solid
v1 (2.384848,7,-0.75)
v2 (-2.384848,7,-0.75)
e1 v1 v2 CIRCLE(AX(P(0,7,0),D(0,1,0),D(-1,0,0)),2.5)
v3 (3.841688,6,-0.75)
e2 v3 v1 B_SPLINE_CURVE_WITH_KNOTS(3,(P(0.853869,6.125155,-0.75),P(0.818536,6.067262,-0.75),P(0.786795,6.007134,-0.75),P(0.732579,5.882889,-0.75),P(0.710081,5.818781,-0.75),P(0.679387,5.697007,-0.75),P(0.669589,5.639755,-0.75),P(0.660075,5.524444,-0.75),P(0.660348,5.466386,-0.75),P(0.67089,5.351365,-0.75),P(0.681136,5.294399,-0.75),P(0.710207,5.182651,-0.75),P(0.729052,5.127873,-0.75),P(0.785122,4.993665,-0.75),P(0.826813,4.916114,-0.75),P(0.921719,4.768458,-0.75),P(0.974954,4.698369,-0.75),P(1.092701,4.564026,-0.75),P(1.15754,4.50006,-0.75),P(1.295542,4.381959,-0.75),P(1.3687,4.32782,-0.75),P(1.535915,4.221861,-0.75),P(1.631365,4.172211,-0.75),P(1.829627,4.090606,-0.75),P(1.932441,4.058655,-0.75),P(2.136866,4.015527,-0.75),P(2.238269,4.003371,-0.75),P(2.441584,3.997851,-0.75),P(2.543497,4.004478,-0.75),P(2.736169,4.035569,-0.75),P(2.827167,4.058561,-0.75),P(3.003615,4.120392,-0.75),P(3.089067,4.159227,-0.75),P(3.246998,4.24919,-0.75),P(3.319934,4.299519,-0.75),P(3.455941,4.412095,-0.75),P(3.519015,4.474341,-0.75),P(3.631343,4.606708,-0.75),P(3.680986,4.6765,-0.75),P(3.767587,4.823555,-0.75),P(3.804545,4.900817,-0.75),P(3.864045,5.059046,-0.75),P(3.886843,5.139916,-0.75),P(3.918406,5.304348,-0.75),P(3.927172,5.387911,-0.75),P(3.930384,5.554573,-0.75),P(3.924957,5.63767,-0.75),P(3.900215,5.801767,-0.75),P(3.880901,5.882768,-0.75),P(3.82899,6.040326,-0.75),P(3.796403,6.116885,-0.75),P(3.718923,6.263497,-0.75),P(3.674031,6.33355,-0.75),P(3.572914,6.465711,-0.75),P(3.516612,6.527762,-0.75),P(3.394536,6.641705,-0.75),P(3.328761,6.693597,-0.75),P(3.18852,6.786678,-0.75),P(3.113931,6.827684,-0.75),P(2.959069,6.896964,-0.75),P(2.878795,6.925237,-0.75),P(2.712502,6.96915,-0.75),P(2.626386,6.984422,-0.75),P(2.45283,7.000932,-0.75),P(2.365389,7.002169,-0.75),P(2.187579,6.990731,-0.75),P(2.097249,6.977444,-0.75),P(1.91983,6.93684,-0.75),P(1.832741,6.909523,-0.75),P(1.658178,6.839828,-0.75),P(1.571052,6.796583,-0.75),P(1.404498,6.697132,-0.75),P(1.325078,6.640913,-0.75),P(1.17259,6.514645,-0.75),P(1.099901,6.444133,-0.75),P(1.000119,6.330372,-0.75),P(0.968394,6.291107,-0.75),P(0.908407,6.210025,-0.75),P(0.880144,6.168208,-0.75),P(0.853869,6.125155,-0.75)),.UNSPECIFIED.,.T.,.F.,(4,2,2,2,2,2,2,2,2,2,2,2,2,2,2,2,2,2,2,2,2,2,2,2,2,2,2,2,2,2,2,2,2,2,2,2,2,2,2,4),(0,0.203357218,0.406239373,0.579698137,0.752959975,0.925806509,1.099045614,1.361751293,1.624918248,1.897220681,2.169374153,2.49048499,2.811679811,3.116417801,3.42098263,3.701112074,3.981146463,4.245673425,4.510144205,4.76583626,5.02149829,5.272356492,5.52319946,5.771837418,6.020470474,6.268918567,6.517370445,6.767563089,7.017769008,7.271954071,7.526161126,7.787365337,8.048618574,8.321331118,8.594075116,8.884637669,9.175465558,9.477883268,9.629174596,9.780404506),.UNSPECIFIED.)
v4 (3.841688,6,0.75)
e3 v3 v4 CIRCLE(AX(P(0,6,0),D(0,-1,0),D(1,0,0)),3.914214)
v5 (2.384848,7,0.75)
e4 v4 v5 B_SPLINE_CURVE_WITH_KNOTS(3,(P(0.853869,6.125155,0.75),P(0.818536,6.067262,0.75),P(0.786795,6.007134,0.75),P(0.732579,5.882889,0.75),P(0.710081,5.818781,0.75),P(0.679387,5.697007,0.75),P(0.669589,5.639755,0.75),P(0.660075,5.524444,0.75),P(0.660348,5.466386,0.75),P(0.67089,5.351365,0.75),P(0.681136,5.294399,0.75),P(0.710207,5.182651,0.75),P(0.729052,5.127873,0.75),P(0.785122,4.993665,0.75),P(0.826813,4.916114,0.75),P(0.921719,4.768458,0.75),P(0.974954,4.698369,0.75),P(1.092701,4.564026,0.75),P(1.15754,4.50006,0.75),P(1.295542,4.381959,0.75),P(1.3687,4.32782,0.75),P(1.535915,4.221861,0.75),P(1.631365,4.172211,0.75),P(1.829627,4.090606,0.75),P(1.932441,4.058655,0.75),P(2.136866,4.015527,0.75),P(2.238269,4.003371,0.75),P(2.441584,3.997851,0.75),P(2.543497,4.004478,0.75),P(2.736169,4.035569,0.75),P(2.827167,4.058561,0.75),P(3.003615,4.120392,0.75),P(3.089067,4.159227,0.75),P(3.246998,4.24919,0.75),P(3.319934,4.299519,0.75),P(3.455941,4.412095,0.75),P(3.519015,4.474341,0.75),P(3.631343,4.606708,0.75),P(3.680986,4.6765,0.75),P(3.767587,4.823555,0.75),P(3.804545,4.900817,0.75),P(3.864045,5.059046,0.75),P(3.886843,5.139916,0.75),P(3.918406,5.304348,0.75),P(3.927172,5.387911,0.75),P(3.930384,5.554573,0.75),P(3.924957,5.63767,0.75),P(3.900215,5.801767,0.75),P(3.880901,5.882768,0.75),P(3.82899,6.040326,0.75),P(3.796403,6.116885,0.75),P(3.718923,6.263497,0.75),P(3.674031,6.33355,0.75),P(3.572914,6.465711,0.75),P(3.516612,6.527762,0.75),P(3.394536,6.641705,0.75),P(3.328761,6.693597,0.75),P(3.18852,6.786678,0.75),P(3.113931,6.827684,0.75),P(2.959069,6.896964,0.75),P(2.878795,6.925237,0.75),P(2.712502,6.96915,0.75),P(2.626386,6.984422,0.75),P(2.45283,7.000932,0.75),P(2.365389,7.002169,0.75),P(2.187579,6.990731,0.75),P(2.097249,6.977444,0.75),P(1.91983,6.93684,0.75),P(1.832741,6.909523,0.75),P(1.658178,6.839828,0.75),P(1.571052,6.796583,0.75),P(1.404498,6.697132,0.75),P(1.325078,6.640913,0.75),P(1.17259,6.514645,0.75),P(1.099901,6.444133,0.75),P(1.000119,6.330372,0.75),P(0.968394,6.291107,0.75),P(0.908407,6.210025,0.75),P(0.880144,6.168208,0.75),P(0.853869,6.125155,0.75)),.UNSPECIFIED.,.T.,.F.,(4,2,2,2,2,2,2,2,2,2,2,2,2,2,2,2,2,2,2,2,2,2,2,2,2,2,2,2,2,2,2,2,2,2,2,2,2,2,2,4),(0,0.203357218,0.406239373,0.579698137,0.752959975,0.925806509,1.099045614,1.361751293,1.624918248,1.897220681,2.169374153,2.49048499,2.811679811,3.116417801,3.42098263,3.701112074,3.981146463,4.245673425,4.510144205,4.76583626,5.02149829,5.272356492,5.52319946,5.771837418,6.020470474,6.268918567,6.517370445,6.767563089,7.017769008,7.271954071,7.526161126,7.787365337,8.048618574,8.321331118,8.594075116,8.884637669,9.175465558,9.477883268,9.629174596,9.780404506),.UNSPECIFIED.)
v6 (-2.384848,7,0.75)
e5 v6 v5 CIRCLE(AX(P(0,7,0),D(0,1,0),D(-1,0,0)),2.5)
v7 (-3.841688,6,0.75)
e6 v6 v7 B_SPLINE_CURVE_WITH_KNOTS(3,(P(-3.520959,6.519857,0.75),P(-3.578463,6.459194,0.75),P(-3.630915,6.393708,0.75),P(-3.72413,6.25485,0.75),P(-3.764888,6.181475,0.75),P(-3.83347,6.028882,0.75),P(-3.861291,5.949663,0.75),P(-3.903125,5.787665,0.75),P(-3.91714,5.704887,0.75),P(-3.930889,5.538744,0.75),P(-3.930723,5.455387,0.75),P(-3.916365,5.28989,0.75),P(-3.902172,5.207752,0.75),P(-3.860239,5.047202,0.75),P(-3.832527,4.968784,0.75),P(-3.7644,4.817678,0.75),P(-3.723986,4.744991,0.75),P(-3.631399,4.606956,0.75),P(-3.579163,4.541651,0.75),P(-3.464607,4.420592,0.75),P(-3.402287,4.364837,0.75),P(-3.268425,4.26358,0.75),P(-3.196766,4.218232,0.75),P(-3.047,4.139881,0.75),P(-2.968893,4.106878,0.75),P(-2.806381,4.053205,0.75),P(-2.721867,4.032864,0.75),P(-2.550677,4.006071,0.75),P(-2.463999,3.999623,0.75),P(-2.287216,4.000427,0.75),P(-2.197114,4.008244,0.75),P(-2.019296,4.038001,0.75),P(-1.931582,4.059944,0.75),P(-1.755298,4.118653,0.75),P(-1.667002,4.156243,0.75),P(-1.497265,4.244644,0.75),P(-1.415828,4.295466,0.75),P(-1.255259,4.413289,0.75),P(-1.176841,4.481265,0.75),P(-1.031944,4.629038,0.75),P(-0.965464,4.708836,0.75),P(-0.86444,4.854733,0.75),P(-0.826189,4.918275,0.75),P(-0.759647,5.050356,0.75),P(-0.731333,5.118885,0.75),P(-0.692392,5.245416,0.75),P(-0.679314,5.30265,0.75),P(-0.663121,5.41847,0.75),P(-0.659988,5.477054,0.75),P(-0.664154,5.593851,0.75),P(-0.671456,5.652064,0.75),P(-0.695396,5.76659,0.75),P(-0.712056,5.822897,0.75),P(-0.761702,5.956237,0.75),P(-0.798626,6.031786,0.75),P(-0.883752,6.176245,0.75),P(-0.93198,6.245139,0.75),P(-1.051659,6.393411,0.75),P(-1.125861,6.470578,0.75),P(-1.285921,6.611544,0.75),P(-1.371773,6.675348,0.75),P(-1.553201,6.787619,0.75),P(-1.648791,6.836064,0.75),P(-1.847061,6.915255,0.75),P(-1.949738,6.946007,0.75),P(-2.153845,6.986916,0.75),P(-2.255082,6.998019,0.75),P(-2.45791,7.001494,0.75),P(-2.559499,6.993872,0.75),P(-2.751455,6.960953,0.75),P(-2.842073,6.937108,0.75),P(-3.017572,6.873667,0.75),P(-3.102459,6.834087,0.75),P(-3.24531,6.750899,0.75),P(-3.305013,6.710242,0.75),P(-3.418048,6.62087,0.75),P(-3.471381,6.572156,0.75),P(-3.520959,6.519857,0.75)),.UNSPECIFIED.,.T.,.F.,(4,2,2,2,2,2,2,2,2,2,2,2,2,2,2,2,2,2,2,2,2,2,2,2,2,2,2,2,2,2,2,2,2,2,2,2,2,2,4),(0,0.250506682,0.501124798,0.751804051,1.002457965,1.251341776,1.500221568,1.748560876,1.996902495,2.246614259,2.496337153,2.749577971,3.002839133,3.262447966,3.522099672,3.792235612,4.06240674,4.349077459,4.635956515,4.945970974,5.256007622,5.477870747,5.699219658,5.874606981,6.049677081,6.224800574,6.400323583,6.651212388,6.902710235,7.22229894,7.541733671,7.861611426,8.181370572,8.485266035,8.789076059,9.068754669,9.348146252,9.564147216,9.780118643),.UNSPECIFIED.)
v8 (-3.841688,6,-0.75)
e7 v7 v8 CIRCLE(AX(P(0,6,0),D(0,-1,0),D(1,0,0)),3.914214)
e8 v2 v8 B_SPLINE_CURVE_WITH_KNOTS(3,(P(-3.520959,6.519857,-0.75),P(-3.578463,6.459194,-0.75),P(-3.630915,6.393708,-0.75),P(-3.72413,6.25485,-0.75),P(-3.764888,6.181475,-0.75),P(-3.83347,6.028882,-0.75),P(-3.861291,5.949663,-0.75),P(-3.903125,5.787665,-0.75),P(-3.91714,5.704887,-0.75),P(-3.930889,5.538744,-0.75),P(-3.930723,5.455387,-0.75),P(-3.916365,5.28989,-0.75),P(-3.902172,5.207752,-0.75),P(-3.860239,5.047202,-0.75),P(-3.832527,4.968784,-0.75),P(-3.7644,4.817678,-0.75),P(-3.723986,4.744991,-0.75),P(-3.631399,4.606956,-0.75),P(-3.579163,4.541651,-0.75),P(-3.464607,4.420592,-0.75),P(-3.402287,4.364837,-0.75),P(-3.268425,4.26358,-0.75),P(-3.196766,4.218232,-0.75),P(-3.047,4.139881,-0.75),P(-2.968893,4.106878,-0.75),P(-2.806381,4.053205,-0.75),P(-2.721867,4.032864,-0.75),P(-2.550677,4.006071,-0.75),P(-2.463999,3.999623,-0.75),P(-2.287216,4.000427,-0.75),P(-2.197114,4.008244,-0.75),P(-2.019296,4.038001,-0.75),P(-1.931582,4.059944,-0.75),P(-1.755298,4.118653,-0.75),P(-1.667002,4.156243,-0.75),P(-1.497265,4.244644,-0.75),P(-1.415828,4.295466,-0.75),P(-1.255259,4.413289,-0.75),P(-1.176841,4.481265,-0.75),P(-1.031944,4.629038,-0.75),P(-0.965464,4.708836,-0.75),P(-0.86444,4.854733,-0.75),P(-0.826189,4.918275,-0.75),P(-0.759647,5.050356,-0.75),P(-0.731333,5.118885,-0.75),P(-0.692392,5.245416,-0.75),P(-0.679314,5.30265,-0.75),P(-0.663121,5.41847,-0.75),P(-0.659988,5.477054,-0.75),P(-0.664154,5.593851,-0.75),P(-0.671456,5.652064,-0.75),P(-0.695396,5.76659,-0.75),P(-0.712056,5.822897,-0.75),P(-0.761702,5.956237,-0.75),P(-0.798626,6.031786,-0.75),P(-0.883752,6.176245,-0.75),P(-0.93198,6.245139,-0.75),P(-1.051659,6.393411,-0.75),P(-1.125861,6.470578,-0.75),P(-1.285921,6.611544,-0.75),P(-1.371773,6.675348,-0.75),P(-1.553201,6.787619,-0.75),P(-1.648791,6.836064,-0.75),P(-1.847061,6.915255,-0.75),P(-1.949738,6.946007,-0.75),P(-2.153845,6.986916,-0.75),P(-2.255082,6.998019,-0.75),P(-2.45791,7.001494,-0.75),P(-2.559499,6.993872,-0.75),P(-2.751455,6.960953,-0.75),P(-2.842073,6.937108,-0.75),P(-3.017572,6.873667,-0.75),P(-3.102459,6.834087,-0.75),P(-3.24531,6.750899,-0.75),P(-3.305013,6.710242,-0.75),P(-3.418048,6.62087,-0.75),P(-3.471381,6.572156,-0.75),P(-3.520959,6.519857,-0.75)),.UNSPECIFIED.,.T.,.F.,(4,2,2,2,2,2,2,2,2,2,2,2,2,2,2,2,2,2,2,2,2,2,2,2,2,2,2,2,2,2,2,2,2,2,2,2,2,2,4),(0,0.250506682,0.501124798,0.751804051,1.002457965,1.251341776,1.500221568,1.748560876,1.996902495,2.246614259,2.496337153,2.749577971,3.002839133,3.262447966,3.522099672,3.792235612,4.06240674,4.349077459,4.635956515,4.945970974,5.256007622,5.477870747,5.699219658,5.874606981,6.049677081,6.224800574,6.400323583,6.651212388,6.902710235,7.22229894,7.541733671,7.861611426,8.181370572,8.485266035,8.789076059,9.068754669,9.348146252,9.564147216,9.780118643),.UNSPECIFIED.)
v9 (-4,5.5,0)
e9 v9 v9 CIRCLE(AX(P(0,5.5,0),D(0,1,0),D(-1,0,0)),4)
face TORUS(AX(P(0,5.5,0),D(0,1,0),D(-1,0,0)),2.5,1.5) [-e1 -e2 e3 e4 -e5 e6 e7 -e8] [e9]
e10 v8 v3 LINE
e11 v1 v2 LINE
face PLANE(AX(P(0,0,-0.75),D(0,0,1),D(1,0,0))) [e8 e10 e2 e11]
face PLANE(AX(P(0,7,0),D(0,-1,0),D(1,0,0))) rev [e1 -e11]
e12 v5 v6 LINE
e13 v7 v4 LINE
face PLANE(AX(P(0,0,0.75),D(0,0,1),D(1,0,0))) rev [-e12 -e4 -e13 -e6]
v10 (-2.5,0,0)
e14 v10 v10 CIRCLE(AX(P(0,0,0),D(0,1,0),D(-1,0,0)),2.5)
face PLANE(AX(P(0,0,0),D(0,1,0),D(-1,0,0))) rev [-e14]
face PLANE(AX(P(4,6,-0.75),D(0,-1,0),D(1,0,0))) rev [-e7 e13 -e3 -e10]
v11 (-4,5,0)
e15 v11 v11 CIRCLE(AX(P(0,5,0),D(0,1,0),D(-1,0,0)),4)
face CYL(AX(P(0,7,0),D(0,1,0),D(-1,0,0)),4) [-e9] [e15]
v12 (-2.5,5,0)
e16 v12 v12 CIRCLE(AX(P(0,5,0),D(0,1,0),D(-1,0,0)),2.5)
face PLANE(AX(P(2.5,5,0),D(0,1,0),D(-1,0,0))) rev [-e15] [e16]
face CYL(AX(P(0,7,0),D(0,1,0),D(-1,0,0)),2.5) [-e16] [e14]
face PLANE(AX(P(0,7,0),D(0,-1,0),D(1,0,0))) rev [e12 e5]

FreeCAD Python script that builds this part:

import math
import FreeCAD as App
import Part
import Sketcher
Q = App.Units.Quantity


def add_polygon(sketch, points):
    """Adds a closed chain of lines whose ends are joined by coincident constraints."""
    first, n = sketch.GeometryCount, len(points)
    for a, b in zip(points, points[1:] + points[:1]):
        sketch.addGeometry(Part.LineSegment(App.Vector(*a, 0), App.Vector(*b, 0)), False)
    for i in range(n):
        sketch.addConstraint(Sketcher.Constraint("Coincident", first + i, 2, first + (i + 1) % n, 1))

doc = App.newDocument("Part")
body = doc.addObject("PartDesign::Body", "Body")

sketch1 = body.newObject("Sketcher::SketchObject", "Sketch")
sketch1.AttachmentSupport = (doc.getObject("XY_Plane"), [""])
sketch1.MapMode = "FlatFace"
sketch1.addGeometry([
    Part.LineSegment(App.Vector(0, 0, 0), App.Vector(2.5, 0, 0)),
    Part.LineSegment(App.Vector(2.5, 0, 0), App.Vector(2.5, 5, 0)),
    Part.LineSegment(App.Vector(2.5, 5, 0), App.Vector(4, 5, 0)),
    Part.LineSegment(App.Vector(4, 5, 0), App.Vector(4, 5.5, 0)),
    Part.ArcOfCircle(Part.Circle(App.Vector(2.5, 5.5, 0), App.Vector(0, 0, 1), 1.5), math.radians(0), math.radians(90)),
    Part.LineSegment(App.Vector(2.5, 7, 0), App.Vector(0, 7, 0)),
    Part.LineSegment(App.Vector(0, 7, 0), App.Vector(0, 0, 0)),
], False)
sketch1.addConstraint([
    Sketcher.Constraint("Coincident", 0, 2, 1, 1),
    Sketcher.Constraint("Coincident", 1, 2, 2, 1),
    Sketcher.Constraint("Coincident", 2, 2, 3, 1),
    Sketcher.Constraint("Tangent", 3, 2, 4, 1),
    Sketcher.Constraint("Tangent", 4, 2, 5, 1),
    Sketcher.Constraint("Coincident", 5, 2, 6, 1),
    Sketcher.Constraint("Coincident", 6, 2, 0, 1),
    Sketcher.Constraint("Horizontal", 0),
    Sketcher.Constraint("Vertical", 1),
    Sketcher.Constraint("Horizontal", 2),
    Sketcher.Constraint("Vertical", 3),
    Sketcher.Constraint("Horizontal", 5),
    Sketcher.Constraint("Vertical", 6),
    Sketcher.Constraint("Coincident", 6, 2, -1, 1),
    Sketcher.Constraint("Vertical", 4, 3, 0, 2),
    Sketcher.Constraint("Radius", 4, Q("1.5 mm")),
    Sketcher.Constraint("DistanceY", 1, 1, 1, 2, Q("5 mm")),
    Sketcher.Constraint("DistanceY", 6, 2, 6, 1, Q("7 mm")),
    Sketcher.Constraint("DistanceX", 0, 1, 0, 2, Q("2.5 mm")),
])
revolution = body.newObject("PartDesign::Revolution", "Revolution")
revolution.Profile = sketch1
revolution.ReferenceAxis = (sketch1, ["V_Axis"])
revolution.Angle = 360

sketch2 = body.newObject("Sketcher::SketchObject", "Sketch001")
sketch2.AttachmentSupport = (doc.getObject("XY_Plane"), [""])
sketch2.MapMode = "FlatFace"
add_polygon(sketch2, [(-4, 7), (-4, 6), (4, 6), (4, 7)])
sketch2.addConstraint([
    Sketcher.Constraint("Vertical", 0),
    Sketcher.Constraint("Horizontal", 1),
    Sketcher.Constraint("Vertical", 2),
    Sketcher.Constraint("Horizontal", 3),
    Sketcher.Constraint("DistanceX", 1, 1, 1, 2, Q("8 mm")),
    Sketcher.Constraint("DistanceY", 0, 2, 0, 1, Q("1 mm")),
    Sketcher.Constraint("DistanceX", 0, 2, -1, 1, Q("4 mm")),
    Sketcher.Constraint("DistanceY", -1, 1, 0, 2, Q("6 mm")),
])
pocket1 = body.newObject("PartDesign::Pocket", "Pocket")
pocket1.Profile = sketch2
pocket1.Length = 1.5
pocket1.Midplane = True

doc.recompute()
